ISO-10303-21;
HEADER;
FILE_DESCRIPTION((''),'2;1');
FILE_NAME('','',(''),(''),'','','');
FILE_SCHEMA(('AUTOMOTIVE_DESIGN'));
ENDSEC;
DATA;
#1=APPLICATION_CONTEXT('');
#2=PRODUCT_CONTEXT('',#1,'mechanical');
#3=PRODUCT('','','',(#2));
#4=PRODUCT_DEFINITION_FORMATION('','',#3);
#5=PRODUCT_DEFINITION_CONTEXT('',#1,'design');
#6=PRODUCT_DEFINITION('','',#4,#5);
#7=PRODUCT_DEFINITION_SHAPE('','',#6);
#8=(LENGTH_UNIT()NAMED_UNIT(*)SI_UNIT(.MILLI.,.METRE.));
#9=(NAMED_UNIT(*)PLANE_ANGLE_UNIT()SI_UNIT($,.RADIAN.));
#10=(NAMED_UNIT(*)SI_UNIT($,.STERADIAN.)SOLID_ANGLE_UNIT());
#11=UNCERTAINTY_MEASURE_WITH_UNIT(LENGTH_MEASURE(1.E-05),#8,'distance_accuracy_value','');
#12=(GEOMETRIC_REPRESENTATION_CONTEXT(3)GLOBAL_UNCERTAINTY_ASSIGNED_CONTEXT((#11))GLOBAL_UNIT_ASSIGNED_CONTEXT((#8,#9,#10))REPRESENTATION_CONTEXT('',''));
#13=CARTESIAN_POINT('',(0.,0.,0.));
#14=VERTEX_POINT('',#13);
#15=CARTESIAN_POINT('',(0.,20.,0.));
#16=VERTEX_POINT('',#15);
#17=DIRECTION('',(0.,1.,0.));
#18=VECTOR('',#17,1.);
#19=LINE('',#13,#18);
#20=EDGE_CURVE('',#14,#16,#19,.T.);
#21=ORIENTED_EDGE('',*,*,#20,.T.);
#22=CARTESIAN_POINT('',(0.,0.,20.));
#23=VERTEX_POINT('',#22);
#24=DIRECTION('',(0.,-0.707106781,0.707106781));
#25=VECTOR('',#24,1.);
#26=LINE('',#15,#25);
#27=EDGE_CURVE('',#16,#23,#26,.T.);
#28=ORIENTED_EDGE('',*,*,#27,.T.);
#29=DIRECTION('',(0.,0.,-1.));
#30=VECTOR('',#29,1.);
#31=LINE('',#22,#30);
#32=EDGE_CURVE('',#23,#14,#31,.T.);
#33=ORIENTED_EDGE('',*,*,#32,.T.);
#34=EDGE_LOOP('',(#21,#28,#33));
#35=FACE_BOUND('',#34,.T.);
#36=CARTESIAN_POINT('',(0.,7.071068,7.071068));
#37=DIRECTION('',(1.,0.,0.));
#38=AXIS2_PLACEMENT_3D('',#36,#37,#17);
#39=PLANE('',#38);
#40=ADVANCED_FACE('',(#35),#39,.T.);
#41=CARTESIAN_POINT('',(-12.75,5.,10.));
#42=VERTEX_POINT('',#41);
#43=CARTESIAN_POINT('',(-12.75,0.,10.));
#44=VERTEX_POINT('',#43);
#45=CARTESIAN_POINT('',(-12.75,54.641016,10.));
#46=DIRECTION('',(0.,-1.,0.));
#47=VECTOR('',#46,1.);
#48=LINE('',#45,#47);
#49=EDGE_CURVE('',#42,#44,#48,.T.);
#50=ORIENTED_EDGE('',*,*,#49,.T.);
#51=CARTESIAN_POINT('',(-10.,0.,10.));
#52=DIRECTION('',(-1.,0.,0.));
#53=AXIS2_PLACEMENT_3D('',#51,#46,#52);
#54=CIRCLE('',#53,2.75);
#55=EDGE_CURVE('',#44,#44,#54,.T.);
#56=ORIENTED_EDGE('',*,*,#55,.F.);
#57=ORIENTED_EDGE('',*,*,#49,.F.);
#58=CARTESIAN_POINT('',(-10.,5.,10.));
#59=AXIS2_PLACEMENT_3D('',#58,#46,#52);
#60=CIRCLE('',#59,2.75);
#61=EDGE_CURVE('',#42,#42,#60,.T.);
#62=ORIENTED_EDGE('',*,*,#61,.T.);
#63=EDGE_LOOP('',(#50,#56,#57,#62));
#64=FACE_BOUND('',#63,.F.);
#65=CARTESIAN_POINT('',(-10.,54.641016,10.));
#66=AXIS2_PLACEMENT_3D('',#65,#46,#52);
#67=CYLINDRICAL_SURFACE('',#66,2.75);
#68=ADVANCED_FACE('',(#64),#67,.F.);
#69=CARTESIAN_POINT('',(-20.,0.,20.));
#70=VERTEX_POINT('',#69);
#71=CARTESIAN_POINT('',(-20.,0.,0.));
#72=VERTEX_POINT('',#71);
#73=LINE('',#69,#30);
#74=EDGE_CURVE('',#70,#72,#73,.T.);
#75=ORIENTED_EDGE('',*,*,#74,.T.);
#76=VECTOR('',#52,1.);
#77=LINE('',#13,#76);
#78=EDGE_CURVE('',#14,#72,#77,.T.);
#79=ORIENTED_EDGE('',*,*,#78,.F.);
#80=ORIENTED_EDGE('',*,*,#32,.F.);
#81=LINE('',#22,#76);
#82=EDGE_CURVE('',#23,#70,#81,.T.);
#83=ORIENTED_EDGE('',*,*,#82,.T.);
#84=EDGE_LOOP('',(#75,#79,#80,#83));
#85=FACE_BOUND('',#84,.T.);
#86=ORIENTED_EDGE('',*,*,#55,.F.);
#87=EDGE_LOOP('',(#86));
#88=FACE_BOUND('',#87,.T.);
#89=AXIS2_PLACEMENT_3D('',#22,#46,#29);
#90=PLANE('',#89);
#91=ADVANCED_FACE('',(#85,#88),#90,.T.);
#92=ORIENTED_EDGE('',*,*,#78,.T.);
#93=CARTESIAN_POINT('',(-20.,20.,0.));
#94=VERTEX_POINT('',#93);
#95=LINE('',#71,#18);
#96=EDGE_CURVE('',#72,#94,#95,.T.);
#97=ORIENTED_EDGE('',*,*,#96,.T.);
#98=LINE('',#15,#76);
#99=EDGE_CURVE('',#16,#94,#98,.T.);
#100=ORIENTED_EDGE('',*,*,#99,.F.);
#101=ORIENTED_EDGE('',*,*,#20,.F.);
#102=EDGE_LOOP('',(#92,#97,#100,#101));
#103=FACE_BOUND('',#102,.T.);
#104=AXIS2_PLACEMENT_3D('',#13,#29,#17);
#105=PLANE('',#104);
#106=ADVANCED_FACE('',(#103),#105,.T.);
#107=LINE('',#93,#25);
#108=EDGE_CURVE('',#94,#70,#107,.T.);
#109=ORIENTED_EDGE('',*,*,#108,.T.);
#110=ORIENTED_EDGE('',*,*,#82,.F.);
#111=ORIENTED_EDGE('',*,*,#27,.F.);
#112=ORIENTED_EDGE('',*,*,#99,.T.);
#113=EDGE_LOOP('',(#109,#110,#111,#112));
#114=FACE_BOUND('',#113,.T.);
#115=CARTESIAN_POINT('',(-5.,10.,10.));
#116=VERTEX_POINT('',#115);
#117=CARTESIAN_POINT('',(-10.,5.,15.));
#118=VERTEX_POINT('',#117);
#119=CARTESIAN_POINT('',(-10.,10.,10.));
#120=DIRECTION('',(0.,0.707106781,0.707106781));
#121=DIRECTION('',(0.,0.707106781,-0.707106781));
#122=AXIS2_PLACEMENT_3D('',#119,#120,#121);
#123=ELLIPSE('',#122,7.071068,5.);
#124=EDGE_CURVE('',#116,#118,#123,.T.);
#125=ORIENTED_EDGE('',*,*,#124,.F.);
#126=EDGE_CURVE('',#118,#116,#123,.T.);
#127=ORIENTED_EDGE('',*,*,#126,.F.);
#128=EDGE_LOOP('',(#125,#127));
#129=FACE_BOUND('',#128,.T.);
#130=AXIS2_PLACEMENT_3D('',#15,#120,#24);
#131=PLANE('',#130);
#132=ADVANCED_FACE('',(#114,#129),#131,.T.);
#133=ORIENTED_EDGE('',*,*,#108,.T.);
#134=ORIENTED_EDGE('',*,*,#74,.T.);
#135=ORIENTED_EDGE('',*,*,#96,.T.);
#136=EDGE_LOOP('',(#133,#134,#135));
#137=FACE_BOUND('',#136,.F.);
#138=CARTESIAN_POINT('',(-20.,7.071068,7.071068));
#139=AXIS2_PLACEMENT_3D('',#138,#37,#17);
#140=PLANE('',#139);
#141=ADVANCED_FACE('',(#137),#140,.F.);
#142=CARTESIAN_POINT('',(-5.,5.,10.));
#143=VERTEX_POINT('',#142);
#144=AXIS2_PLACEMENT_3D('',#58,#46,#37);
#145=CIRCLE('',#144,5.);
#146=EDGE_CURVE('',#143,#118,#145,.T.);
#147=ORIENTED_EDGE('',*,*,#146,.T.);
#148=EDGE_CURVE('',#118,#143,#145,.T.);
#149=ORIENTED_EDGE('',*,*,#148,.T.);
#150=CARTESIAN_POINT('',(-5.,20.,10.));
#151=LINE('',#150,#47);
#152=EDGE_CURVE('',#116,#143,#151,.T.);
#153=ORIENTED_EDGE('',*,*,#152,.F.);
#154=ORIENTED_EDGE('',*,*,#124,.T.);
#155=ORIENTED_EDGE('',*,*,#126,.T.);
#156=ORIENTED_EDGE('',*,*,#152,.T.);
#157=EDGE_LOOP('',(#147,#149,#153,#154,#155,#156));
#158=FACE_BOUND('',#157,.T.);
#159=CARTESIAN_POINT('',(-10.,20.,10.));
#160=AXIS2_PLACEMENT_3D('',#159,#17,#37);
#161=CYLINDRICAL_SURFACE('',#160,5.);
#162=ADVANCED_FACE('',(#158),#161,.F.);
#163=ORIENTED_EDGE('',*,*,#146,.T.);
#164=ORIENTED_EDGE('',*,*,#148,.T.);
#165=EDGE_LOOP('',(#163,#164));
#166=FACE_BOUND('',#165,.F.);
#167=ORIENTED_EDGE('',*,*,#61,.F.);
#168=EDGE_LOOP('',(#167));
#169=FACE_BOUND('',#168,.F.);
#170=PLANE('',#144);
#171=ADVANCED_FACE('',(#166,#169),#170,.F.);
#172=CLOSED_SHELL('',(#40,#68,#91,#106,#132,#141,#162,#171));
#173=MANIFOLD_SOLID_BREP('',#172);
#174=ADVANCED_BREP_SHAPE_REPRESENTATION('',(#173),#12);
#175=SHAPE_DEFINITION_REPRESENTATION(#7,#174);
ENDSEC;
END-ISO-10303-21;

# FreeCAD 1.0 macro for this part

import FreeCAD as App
import Part
import Sketcher
Q = App.Units.Quantity


def add_polygon(sketch, points):
    """Adds a closed chain of lines whose ends are joined by coincident constraints."""
    first, n = sketch.GeometryCount, len(points)
    for a, b in zip(points, points[1:] + points[:1]):
        sketch.addGeometry(Part.LineSegment(App.Vector(*a, 0), App.Vector(*b, 0)), False)
    for i in range(n):
        sketch.addConstraint(Sketcher.Constraint("Coincident", first + i, 2, first + (i + 1) % n, 1))

doc = App.newDocument("Part")
body = doc.addObject("PartDesign::Body", "Body")

sketch1 = body.newObject("Sketcher::SketchObject", "Sketch")
sketch1.AttachmentSupport = (doc.getObject("YZ_Plane"), [""])
sketch1.MapMode = "FlatFace"
add_polygon(sketch1, [(0, 20), (0, 0), (20, 0)])
sketch1.addConstraint(Sketcher.Constraint("Vertical", 0))
sketch1.addConstraint(Sketcher.Constraint("Horizontal", 1))
sketch1.addConstraint(Sketcher.Constraint("Coincident", 0, 2, -1, 1))
sketch1.addConstraint(Sketcher.Constraint("Equal", 1, 0))
sketch1.addConstraint(Sketcher.Constraint("DistanceX", 1, 1, 1, 2, Q("20 mm")))
pad1 = body.newObject("PartDesign::Pad", "Pad")
pad1.Profile = sketch1
pad1.Length = 20
pad1.Reversed = True

sketch2 = body.newObject("Sketcher::SketchObject", "Sketch001")
sketch2.AttachmentSupport = (doc.getObject("XZ_Plane"), [""])
sketch2.MapMode = "FlatFace"
sketch2.AttachmentOffset = App.Placement(App.Vector(0, 0, -20), App.Rotation())
sketch2.addGeometry(Part.Circle(App.Vector(-10, 10, 0), App.Vector(0, 0, 1), 2.8), False)
sketch2.addConstraint(Sketcher.Constraint("Diameter", 0, Q("5.5 mm")))
sketch2.addConstraint(Sketcher.Constraint("DistanceX", 0, 3, -1, 1, Q("10 mm")))
sketch2.addConstraint(Sketcher.Constraint("DistanceY", -1, 1, 0, 3, Q("10 mm")))
doc.recompute()
hole = body.newObject("PartDesign::Hole", "Hole")
hole.Profile = sketch2
hole.ThreadType = "None"
hole.Diameter = 5.5
hole.DepthType = "ThroughAll"
hole.Reversed = True

sketch3 = body.newObject("Sketcher::SketchObject", "Sketch002")
sketch3.AttachmentSupport = (doc.getObject("XZ_Plane"), [""])
sketch3.MapMode = "FlatFace"
sketch3.AttachmentOffset = App.Placement(App.Vector(0, 0, -20), App.Rotation())
sketch3.addGeometry(Part.Circle(App.Vector(-10, 10, 0), App.Vector(0, 0, 1), 5), False)
sketch3.addConstraint(Sketcher.Constraint("Diameter", 0, Q("10 mm")))
sketch3.addConstraint(Sketcher.Constraint("DistanceX", 0, 3, -1, 1, Q("10 mm")))
sketch3.addConstraint(Sketcher.Constraint("DistanceY", -1, 1, 0, 3, Q("10 mm")))
pocket1 = body.newObject("PartDesign::Pocket", "Pocket")
pocket1.Profile = sketch3
pocket1.Length = 15
pocket1.Reversed = True

doc.recompute()
